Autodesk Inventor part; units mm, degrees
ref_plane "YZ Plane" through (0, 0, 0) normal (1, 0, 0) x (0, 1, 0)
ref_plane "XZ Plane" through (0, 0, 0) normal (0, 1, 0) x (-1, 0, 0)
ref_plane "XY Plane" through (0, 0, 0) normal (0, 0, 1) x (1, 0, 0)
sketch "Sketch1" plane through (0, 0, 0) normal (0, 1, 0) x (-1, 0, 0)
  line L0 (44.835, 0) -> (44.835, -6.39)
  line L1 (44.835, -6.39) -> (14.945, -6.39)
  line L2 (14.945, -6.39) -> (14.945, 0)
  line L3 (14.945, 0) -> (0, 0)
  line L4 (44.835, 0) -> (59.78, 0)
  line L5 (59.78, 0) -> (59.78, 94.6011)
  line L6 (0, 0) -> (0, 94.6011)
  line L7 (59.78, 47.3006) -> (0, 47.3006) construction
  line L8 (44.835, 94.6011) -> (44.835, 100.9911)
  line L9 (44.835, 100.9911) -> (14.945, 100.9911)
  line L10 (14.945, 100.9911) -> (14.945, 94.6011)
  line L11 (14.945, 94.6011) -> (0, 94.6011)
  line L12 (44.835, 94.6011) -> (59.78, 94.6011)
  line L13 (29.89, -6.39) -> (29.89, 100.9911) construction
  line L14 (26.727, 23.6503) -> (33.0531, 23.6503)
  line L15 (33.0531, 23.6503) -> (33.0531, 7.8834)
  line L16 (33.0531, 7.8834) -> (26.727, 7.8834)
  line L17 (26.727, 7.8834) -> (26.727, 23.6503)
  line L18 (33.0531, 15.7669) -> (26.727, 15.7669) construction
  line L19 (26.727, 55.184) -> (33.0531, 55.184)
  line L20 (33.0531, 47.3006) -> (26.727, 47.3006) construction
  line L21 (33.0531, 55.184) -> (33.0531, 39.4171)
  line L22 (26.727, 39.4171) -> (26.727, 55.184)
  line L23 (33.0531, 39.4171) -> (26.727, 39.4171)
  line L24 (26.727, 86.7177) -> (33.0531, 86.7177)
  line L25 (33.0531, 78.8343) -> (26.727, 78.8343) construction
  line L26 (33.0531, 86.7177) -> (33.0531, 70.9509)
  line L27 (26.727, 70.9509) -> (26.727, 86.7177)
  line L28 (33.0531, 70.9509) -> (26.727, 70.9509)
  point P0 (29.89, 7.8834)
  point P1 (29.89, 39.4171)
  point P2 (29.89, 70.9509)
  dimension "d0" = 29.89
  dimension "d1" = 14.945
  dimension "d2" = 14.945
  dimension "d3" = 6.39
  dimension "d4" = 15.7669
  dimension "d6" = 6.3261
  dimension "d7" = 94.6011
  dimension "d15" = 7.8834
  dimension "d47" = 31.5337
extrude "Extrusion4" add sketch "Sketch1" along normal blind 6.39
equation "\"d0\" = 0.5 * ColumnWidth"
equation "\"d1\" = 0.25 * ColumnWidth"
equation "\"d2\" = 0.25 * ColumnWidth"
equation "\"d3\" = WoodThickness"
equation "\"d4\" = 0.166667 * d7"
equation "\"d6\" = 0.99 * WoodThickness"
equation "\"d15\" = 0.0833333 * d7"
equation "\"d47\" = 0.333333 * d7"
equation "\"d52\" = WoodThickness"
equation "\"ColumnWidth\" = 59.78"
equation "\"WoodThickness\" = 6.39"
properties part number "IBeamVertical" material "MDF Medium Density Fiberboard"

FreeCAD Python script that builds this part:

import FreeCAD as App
import Part
import Sketcher
from FreeCAD import Vector


def add_polygon(sketch, points):
    """Adds a closed chain of lines whose ends are joined by coincident constraints."""
    first, n = sketch.GeometryCount, len(points)
    for a, b in zip(points, points[1:] + points[:1]):
        sketch.addGeometry(Part.LineSegment(App.Vector(*a, 0), App.Vector(*b, 0)), False)
    for i in range(n):
        sketch.addConstraint(Sketcher.Constraint("Coincident", first + i, 2, first + (i + 1) % n, 1))

doc = App.newDocument("Part")
body = doc.addObject("PartDesign::Body", "Body")

sketch1 = doc.addObject("Sketcher::SketchObject", "Sketch")
body.addObject(sketch1)
sketch1.AttachmentSupport = (doc.XZ_Plane, [""])
sketch1.MapMode = "FlatFace"
add_polygon(sketch1, [(-44.835, -6.39), (-44.835, 0), (-59.78, 0), (-59.78, 94.6011), (-44.835, 94.6011), (-44.835, 100.9911), (-14.945, 100.9911), (-14.945, 94.6011), (0, 94.6011), (0, 0), (-14.945, 0), (-14.945, -6.39)])
add_polygon(sketch1, [(-26.727, 7.8834), (-26.727, 23.6503), (-33.0531, 23.6503), (-33.0531, 7.8834)])
add_polygon(sketch1, [(-26.727, 39.4171), (-26.727, 55.184), (-33.0531, 55.184), (-33.0531, 39.4171)])
add_polygon(sketch1, [(-26.727, 70.9509), (-26.727, 86.7177), (-33.0531, 86.7177), (-33.0531, 70.9509)])
sketch1.addConstraint(Sketcher.Constraint("Vertical", 0))
sketch1.addConstraint(Sketcher.Constraint("Horizontal", 1))
sketch1.addConstraint(Sketcher.Constraint("Vertical", 2))
sketch1.addConstraint(Sketcher.Constraint("Horizontal", 3))
sketch1.addConstraint(Sketcher.Constraint("Vertical", 4))
sketch1.addConstraint(Sketcher.Constraint("Horizontal", 5))
sketch1.addConstraint(Sketcher.Constraint("Vertical", 6))
sketch1.addConstraint(Sketcher.Constraint("Horizontal", 7))
sketch1.addConstraint(Sketcher.Constraint("Vertical", 8))
sketch1.addConstraint(Sketcher.Constraint("Horizontal", 9))
sketch1.addConstraint(Sketcher.Constraint("Vertical", 10))
sketch1.addConstraint(Sketcher.Constraint("Horizontal", 11))
sketch1.addConstraint(Sketcher.Constraint("Vertical", 12))
sketch1.addConstraint(Sketcher.Constraint("Horizontal", 13))
sketch1.addConstraint(Sketcher.Constraint("Vertical", 14))
sketch1.addConstraint(Sketcher.Constraint("Horizontal", 15))
sketch1.addConstraint(Sketcher.Constraint("Vertical", 16))
sketch1.addConstraint(Sketcher.Constraint("Horizontal", 17))
sketch1.addConstraint(Sketcher.Constraint("Vertical", 18))
sketch1.addConstraint(Sketcher.Constraint("Horizontal", 19))
sketch1.addConstraint(Sketcher.Constraint("Vertical", 20))
sketch1.addConstraint(Sketcher.Constraint("Horizontal", 21))
sketch1.addConstraint(Sketcher.Constraint("Vertical", 22))
sketch1.addConstraint(Sketcher.Constraint("Horizontal", 23))
sketch1.addConstraint(Sketcher.Constraint("Coincident", 8, 2, -1, 1))
sketch1.addConstraint(Sketcher.Constraint("PointOnObject", 0, 2, -1))
sketch1.addConstraint(Sketcher.Constraint("Horizontal", 3, 2, 6, 2))
sketch1.addConstraint(Sketcher.Constraint("Vertical", 0, 2, 3, 2))
sketch1.addConstraint(Sketcher.Constraint("Vertical", 6, 2, 9, 2))
sketch1.addConstraint(Sketcher.Constraint("Vertical", 15, 2, 16, 2))
sketch1.addConstraint(Sketcher.Constraint("Vertical", 14, 2, 17, 2))
sketch1.addConstraint(Sketcher.Constraint("Vertical", 19, 2, 20, 2))
sketch1.addConstraint(Sketcher.Constraint("Vertical", 18, 2, 21, 2))
sketch1.addConstraint(Sketcher.Constraint("Equal", 3, 7))
sketch1.addConstraint(Sketcher.Constraint("Equal", 0, 4))
sketch1.addConstraint(Sketcher.Constraint("Equal", 14, 16))
sketch1.addConstraint(Sketcher.Constraint("Equal", 18, 20))
sketch1.addConstraint(Sketcher.Constraint("DistanceX", 5, 1, 5, 2, 29.89))
sketch1.addConstraint(Sketcher.Constraint("DistanceY", 0, 1, 0, 2, 6.39))
sketch1.addConstraint(Sketcher.Constraint("DistanceX", 1, 2, 1, 1, 14.945))
sketch1.addConstraint(Sketcher.Constraint("DistanceX", 13, 2, 13, 1, 6.326))
sketch1.addConstraint(Sketcher.Constraint("DistanceY", 2, 1, 2, 2, 94.601))
sketch1.addConstraint(Sketcher.Constraint("DistanceY", 12, 1, 12, 2, 15.767))
sketch1.addConstraint(Sketcher.Constraint("DistanceY", 17, 2, 22, 2, 15.767))
sketch1.addConstraint(Sketcher.Constraint("DistanceY", -1, 1, 14, 2, 7.8834))
sketch1.addConstraint(Sketcher.Constraint("DistanceY", 12, 2, 16, 2, 31.5337))
sketch1.addConstraint(Sketcher.Constraint("DistanceX", 12, 2, -1, 1, 26.727))
pad1 = doc.addObject("PartDesign::Pad", "Pad")
body.addObject(pad1)
pad1.Profile = sketch1
pad1.Length = 6.39
pad1.Reversed = True

doc.recompute()
